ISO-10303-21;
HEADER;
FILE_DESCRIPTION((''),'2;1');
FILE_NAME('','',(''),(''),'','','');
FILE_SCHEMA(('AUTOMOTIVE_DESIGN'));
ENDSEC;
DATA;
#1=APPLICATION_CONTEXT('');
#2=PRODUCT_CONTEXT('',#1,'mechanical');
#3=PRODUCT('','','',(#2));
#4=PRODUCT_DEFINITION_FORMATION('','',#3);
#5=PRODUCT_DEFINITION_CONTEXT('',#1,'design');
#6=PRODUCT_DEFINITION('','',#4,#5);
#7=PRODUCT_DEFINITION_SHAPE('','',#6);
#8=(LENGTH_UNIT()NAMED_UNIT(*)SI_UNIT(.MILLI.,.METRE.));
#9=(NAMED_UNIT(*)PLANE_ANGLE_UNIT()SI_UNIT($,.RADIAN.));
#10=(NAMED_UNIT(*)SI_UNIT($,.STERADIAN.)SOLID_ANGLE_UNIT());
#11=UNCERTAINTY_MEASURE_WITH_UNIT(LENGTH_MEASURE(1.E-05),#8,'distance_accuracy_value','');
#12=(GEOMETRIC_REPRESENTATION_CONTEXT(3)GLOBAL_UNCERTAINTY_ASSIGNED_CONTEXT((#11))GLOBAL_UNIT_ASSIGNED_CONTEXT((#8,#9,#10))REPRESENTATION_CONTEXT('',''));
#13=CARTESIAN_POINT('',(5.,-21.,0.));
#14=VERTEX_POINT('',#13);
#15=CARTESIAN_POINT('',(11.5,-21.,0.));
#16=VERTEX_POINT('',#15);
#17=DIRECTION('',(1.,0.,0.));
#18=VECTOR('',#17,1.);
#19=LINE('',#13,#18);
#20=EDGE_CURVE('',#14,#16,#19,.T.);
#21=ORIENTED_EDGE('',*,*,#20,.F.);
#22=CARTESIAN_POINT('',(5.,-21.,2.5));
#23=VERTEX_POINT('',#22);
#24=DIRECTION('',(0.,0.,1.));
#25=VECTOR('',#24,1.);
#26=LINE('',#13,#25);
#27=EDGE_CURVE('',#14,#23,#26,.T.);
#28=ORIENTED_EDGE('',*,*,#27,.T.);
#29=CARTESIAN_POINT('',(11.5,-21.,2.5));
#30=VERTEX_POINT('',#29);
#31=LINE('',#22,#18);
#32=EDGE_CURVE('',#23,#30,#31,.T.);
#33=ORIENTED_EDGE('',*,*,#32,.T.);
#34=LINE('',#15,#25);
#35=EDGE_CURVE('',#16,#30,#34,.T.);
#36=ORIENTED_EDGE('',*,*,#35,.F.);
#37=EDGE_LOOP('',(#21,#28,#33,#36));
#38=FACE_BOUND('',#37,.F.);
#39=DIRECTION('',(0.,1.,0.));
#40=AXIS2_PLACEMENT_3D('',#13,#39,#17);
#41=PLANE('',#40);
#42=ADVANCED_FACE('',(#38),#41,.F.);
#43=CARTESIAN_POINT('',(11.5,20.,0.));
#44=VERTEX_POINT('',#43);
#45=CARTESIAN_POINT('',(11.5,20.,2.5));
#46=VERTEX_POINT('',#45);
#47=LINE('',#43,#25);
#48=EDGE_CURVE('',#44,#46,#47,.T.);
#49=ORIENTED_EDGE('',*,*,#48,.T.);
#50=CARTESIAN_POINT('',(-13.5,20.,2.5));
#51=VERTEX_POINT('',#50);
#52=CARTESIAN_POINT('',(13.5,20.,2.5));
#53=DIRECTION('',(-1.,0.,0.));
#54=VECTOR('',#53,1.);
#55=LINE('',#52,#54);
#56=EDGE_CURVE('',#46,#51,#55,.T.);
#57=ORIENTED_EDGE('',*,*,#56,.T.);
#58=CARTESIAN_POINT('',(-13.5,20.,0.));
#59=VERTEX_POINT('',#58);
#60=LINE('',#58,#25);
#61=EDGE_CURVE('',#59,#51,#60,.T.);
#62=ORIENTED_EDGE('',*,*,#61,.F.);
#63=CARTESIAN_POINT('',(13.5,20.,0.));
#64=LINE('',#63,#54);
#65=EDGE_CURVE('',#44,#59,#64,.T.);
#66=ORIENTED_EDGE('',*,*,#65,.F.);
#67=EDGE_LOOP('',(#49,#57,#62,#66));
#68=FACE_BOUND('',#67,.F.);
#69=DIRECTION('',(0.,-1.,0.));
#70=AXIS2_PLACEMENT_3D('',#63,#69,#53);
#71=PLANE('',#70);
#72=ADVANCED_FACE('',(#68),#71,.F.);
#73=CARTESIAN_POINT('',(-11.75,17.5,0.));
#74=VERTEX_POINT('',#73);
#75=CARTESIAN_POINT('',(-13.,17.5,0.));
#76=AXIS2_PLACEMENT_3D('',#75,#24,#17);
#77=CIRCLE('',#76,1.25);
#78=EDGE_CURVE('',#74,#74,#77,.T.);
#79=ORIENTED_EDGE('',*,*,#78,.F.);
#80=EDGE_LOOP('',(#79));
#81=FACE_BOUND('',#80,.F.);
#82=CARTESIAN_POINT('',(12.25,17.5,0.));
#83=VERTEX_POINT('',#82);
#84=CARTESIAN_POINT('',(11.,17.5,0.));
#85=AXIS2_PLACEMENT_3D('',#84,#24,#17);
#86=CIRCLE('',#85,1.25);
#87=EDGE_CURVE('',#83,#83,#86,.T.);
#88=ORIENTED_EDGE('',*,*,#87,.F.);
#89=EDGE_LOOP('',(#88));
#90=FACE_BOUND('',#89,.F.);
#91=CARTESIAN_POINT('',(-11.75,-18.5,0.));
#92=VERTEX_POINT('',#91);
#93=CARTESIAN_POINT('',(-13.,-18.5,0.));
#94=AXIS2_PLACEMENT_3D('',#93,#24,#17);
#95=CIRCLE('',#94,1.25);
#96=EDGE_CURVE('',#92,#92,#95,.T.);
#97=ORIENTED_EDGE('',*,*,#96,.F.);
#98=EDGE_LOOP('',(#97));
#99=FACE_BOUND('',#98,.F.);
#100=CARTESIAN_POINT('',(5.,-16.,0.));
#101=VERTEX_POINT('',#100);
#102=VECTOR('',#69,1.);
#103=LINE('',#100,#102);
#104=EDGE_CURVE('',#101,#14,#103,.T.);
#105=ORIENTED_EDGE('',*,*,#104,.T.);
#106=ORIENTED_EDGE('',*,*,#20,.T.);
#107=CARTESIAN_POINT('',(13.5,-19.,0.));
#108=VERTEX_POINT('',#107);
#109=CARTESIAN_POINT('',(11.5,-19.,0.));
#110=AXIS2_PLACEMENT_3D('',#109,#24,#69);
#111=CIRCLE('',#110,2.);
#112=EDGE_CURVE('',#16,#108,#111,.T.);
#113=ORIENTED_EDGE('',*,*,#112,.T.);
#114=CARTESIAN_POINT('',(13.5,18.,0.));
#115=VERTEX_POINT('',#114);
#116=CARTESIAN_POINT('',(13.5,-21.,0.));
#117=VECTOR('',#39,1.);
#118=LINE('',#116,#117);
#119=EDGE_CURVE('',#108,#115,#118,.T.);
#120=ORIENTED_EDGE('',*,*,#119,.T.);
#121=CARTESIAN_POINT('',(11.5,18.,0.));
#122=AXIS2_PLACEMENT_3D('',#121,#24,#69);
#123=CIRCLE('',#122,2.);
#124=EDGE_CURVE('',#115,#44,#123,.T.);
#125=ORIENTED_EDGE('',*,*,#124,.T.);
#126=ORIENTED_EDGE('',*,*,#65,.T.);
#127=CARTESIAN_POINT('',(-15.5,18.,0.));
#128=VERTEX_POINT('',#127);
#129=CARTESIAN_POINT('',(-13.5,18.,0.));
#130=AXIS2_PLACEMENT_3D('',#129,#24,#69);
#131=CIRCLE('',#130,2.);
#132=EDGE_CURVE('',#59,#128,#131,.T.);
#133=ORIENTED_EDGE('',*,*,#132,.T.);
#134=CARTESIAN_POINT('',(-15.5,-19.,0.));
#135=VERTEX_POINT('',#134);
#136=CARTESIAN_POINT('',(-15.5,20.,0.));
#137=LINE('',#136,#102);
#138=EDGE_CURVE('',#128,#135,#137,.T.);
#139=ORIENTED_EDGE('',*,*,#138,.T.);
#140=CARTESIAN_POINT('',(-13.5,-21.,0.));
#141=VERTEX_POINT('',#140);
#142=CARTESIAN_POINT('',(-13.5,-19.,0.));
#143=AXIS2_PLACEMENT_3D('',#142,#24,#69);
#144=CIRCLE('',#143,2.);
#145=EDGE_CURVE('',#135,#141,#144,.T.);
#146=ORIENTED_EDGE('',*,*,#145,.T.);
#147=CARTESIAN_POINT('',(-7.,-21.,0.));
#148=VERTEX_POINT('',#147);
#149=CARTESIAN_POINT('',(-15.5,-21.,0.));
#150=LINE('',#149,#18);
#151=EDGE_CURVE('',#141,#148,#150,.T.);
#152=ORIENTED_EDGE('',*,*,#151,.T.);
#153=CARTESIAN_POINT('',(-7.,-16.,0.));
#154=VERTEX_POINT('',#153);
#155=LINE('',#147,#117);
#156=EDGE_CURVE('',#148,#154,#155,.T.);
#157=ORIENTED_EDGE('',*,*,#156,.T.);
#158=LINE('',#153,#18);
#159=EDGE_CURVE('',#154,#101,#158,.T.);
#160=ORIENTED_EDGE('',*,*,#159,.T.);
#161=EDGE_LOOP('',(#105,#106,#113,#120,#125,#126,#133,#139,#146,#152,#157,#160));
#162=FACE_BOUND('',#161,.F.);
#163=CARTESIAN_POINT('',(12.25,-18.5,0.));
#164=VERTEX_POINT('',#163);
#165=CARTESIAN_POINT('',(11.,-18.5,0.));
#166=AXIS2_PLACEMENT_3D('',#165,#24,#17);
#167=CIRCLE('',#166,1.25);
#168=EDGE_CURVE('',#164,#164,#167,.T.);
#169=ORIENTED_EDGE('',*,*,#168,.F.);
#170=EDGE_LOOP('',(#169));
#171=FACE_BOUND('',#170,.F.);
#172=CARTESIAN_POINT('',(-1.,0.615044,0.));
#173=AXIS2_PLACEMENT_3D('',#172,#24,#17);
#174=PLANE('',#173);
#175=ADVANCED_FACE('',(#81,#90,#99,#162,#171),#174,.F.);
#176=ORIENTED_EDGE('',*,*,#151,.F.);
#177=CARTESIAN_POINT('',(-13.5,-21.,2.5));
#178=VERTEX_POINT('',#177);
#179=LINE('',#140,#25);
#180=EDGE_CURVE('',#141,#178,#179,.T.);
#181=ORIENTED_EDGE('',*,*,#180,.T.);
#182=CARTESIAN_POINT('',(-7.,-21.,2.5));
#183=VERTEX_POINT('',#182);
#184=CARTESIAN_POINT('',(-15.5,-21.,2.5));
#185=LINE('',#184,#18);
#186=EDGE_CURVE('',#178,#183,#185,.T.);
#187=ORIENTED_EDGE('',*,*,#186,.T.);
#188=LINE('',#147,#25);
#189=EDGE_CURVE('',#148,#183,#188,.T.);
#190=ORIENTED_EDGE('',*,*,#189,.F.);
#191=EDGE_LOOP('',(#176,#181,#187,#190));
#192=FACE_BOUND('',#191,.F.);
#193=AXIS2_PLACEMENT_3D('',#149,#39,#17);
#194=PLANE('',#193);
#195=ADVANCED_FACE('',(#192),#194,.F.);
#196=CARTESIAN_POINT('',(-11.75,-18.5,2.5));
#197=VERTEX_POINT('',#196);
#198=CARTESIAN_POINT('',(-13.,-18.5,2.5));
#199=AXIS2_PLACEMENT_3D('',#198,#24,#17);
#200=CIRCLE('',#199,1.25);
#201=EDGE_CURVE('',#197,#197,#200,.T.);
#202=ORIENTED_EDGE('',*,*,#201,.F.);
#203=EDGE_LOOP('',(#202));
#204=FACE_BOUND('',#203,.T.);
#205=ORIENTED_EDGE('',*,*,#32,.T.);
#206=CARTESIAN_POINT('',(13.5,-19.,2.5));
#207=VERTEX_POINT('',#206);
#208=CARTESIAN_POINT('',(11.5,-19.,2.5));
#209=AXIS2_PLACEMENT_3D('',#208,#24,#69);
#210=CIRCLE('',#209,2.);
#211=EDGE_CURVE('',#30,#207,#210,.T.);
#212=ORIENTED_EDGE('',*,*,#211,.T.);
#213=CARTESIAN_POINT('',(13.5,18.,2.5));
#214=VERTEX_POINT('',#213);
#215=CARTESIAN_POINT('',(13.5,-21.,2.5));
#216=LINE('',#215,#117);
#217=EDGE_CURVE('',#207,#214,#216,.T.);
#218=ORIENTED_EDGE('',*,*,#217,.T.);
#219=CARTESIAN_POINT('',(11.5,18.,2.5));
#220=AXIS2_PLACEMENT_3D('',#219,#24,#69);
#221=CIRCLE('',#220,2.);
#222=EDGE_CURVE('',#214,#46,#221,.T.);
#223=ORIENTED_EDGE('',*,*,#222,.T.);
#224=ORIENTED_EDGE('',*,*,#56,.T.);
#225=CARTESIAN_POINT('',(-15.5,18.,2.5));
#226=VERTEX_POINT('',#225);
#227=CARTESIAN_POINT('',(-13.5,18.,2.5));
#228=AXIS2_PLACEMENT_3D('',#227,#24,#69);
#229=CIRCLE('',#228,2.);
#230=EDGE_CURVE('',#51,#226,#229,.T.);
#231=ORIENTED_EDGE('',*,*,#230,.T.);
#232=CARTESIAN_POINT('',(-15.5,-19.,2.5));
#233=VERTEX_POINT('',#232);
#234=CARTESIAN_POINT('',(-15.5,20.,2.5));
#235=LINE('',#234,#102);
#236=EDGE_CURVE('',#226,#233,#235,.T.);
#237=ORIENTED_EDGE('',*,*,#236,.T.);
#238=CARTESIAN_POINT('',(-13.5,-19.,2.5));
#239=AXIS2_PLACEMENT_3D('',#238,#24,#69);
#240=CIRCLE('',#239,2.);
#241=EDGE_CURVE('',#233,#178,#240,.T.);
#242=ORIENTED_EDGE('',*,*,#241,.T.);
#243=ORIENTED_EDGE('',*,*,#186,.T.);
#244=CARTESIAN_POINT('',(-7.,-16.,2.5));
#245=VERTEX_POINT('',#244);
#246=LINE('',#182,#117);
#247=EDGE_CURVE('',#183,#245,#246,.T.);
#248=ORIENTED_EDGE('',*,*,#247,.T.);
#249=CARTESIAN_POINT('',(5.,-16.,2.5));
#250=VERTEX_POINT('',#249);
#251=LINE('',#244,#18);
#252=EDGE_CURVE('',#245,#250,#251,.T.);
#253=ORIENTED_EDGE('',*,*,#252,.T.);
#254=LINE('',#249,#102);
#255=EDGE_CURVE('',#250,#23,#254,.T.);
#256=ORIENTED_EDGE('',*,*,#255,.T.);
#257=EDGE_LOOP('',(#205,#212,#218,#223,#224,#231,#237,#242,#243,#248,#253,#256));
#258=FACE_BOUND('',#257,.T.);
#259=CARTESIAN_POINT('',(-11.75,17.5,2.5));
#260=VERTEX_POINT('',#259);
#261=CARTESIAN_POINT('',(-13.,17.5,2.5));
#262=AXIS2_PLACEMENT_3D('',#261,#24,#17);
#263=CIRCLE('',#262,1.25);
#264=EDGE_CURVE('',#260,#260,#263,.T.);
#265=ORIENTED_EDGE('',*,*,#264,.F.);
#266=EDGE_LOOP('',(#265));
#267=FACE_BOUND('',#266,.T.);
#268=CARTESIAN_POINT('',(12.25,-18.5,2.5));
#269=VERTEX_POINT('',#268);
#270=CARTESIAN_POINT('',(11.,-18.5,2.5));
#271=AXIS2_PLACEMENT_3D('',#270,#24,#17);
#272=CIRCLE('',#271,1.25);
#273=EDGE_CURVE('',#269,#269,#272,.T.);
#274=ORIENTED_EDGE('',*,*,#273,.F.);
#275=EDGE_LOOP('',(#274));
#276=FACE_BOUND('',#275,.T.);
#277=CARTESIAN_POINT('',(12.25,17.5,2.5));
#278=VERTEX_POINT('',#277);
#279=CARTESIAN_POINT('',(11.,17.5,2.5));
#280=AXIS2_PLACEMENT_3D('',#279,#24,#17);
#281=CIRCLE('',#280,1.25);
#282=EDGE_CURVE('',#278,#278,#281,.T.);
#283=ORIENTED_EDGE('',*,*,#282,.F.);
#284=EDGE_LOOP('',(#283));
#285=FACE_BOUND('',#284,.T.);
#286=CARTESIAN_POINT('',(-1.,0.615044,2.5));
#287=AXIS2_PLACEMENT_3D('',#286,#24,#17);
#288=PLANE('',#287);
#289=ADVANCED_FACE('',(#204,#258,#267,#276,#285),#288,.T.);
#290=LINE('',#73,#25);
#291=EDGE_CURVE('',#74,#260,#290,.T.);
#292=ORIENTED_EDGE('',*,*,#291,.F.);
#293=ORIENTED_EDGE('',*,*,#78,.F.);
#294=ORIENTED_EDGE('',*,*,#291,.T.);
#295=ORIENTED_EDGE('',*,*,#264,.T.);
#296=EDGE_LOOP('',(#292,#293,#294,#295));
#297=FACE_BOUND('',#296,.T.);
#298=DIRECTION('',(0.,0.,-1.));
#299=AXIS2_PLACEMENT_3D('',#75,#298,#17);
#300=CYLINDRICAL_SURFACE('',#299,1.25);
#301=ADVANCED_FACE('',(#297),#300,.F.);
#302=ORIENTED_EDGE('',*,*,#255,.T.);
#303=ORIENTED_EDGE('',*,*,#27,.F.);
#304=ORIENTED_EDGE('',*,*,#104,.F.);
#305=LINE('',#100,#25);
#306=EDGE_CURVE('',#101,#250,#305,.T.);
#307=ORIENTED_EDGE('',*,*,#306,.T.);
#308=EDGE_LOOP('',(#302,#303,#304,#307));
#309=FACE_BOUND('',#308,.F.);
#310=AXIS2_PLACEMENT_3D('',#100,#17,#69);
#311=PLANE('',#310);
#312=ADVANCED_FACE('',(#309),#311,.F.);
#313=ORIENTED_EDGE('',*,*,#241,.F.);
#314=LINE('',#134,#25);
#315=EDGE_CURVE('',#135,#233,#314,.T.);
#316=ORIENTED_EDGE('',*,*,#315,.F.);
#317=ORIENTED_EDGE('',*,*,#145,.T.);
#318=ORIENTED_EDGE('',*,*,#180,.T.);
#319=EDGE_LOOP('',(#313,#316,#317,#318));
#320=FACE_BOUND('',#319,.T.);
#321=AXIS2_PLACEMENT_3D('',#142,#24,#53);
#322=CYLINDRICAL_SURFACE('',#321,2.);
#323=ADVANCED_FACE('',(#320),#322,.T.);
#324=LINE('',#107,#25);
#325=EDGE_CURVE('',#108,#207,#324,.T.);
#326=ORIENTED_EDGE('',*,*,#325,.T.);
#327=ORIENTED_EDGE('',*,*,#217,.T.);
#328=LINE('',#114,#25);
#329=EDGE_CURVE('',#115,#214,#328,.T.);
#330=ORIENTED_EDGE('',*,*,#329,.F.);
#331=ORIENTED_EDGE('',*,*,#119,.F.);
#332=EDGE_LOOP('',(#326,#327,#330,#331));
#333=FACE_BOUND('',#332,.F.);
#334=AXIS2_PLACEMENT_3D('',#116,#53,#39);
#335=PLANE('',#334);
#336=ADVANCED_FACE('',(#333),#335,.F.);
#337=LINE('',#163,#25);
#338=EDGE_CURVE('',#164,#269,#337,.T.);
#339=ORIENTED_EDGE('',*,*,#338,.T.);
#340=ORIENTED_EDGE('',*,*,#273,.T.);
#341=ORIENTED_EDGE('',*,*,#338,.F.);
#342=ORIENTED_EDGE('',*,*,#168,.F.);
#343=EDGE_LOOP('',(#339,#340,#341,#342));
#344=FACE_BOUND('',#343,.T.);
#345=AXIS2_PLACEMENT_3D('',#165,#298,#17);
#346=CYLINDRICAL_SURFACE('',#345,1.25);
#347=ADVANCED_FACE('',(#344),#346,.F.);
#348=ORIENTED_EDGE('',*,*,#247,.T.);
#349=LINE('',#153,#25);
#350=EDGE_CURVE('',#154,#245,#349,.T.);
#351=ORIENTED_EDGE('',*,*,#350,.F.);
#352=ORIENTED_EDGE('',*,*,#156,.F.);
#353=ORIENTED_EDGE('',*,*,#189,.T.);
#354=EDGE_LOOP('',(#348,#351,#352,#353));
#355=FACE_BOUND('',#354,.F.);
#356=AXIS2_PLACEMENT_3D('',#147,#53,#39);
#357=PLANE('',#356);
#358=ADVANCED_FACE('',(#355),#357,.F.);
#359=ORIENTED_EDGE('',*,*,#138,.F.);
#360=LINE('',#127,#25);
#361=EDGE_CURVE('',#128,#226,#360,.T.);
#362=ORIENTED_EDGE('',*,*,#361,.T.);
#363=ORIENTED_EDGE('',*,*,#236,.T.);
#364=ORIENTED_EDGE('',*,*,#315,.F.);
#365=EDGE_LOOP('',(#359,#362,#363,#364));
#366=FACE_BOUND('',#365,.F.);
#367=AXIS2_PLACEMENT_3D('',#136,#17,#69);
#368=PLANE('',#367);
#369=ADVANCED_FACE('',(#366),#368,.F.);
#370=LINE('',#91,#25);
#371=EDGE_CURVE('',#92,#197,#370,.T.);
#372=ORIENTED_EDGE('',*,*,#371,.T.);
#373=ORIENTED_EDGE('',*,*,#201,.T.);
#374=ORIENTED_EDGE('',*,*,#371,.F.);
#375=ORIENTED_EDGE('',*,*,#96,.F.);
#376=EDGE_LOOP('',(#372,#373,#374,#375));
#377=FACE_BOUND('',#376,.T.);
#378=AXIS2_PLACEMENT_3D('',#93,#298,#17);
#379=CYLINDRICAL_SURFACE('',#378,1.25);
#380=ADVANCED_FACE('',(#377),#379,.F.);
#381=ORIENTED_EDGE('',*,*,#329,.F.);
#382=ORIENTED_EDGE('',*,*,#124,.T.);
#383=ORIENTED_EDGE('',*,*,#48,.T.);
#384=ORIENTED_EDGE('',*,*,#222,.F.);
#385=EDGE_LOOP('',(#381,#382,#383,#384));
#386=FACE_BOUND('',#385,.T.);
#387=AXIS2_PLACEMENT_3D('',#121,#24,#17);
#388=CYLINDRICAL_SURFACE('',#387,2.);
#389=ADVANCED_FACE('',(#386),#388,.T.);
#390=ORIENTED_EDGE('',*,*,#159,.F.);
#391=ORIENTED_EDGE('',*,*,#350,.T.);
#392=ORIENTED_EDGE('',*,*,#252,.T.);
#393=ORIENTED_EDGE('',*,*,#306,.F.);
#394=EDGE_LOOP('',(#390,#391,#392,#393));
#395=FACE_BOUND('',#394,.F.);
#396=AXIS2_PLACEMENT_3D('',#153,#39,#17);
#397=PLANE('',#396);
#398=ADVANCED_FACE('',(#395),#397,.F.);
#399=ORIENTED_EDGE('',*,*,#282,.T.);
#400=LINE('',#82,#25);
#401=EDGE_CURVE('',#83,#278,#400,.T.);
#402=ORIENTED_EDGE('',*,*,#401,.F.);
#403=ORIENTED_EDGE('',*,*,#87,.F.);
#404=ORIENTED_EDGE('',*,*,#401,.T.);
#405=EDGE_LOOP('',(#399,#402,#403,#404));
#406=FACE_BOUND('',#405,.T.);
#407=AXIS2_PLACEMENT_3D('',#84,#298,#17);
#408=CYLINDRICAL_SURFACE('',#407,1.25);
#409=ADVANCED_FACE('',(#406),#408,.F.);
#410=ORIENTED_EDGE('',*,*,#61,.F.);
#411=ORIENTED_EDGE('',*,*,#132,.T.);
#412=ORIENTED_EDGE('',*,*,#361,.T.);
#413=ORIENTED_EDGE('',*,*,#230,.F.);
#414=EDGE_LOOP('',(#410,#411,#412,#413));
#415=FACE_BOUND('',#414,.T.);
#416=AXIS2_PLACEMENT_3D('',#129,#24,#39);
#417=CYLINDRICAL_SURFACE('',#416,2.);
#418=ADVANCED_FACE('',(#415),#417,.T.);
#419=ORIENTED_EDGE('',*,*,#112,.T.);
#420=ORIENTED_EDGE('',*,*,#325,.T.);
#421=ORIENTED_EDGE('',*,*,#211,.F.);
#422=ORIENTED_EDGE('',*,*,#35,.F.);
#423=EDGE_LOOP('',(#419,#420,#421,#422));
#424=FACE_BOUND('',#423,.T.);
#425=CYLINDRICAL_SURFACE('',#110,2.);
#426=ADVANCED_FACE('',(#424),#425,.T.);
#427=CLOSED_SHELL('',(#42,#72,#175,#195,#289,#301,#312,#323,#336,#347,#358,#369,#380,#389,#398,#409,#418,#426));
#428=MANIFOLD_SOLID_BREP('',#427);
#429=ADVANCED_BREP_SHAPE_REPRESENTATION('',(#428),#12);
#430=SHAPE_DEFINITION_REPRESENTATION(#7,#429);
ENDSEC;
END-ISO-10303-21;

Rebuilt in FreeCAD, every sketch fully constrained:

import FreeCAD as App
import Part
import Sketcher

V = App.Vector


def edges_at(feature, points):
    """Names of the edges that pass closest to the given points."""
    edges = feature.Shape.Edges
    near = lambda p: min(range(len(edges)), key=lambda i: edges[i].distToShape(Part.Vertex(*p))[0])
    return sorted({f"Edge{near(p) + 1}" for p in points})

doc = App.newDocument("Part")
body = doc.addObject("PartDesign::Body", "Body")

# Sketch on XY plane
sketch1 = doc.addObject("Sketcher::SketchObject", "Sketch")
body.addObject(sketch1)
sketch1.AttachmentSupport = (doc.XY_Plane, [""])
sketch1.MapMode = "FlatFace"
sketch1.addGeometry(Part.LineSegment(V(5, -16, 0), V(5, -21, 0)), False)
sketch1.addGeometry(Part.LineSegment(V(5, -21, 0), V(13.5, -21, 0)), False)
sketch1.addGeometry(Part.LineSegment(V(13.5, -21, 0), V(13.5, 20, 0)), False)
sketch1.addGeometry(Part.LineSegment(V(13.5, 20, 0), V(-15.5, 20, 0)), False)
sketch1.addGeometry(Part.LineSegment(V(-15.5, 20, 0), V(-15.5, -21, 0)), False)
sketch1.addGeometry(Part.LineSegment(V(-15.5, -21, 0), V(-7, -21, 0)), False)
sketch1.addGeometry(Part.LineSegment(V(-7, -21, 0), V(-7, -16, 0)), False)
sketch1.addGeometry(Part.LineSegment(V(-7, -16, 0), V(5, -16, 0)), False)
sketch1.addGeometry(Part.Circle(V(-13, -18.5, 0), V(0, 0, 1), 1.25), False)
sketch1.addGeometry(Part.Circle(V(11, -18.5, 0), V(0, 0, 1), 1.25), False)
sketch1.addGeometry(Part.Circle(V(-13, 17.5, 0), V(0, 0, 1), 1.25), False)
sketch1.addGeometry(Part.Circle(V(11, 17.5, 0), V(0, 0, 1), 1.25), False)
sketch1.addConstraint(Sketcher.Constraint("Coincident", 0, 2, 1, 1))
sketch1.addConstraint(Sketcher.Constraint("Coincident", 1, 2, 2, 1))
sketch1.addConstraint(Sketcher.Constraint("Coincident", 2, 2, 3, 1))
sketch1.addConstraint(Sketcher.Constraint("Coincident", 3, 2, 4, 1))
sketch1.addConstraint(Sketcher.Constraint("Coincident", 4, 2, 5, 1))
sketch1.addConstraint(Sketcher.Constraint("Coincident", 5, 2, 6, 1))
sketch1.addConstraint(Sketcher.Constraint("Coincident", 6, 2, 7, 1))
sketch1.addConstraint(Sketcher.Constraint("Coincident", 7, 2, 0, 1))
sketch1.addConstraint(Sketcher.Constraint("Vertical", 0))
sketch1.addConstraint(Sketcher.Constraint("Horizontal", 1))
sketch1.addConstraint(Sketcher.Constraint("Vertical", 2))
sketch1.addConstraint(Sketcher.Constraint("Horizontal", 3))
sketch1.addConstraint(Sketcher.Constraint("Vertical", 4))
sketch1.addConstraint(Sketcher.Constraint("Horizontal", 5))
sketch1.addConstraint(Sketcher.Constraint("Vertical", 6))
sketch1.addConstraint(Sketcher.Constraint("Horizontal", 7))
sketch1.addConstraint(Sketcher.Constraint("Equal", 8, 9))
sketch1.addConstraint(Sketcher.Constraint("Equal", 9, 10))
sketch1.addConstraint(Sketcher.Constraint("Equal", 10, 11))
sketch1.addConstraint(Sketcher.Constraint("Horizontal", 8, 3, 9, 3))
sketch1.addConstraint(Sketcher.Constraint("Horizontal", 10, 3, 11, 3))
sketch1.addConstraint(Sketcher.Constraint("Horizontal", 1, 2, 4, 2))
sketch1.addConstraint(Sketcher.Constraint("Vertical", 8, 3, 10, 3))
sketch1.addConstraint(Sketcher.Constraint("Vertical", 9, 3, 11, 3))
sketch1.addConstraint(Sketcher.Constraint("Equal", 1, 5))
sketch1.addConstraint(Sketcher.Constraint("Diameter", 8, 2.5))
sketch1.addConstraint(Sketcher.Constraint("DistanceX", 3, 2, 3, 1, 29.0))
sketch1.addConstraint(Sketcher.Constraint("DistanceX", 7, 1, 7, 2, 12.0))
sketch1.addConstraint(Sketcher.Constraint("DistanceY", 0, 2, 0, 1, 5.0))
sketch1.addConstraint(Sketcher.Constraint("DistanceY", 2, 1, 2, 2, 41.0))
sketch1.addConstraint(Sketcher.Constraint("DistanceX", 8, 3, -1, 1, 13.0))
sketch1.addConstraint(Sketcher.Constraint("DistanceX", -1, 1, 9, 3, 11.0))
sketch1.addConstraint(Sketcher.Constraint("DistanceX", -1, 1, 0, 2, 5.0))
sketch1.addConstraint(Sketcher.Constraint("DistanceY", 0, 2, -1, 1, 21.0))
sketch1.addConstraint(Sketcher.Constraint("DistanceY", 8, 3, 10, 3, 36.0))
sketch1.addConstraint(Sketcher.Constraint("DistanceY", 8, 3, -1, 1, 18.5))
pad1 = doc.addObject("PartDesign::Pad", "Pad")
body.addObject(pad1)
pad1.Profile = sketch1
pad1.Length = 2.5
doc.recompute()

fillet = doc.addObject("PartDesign::Fillet", "Fillet")
body.addObject(fillet)
fillet.Base = (pad1, edges_at(pad1, [
    (-15.5, 20, 1.25),
    (13.5, 20, 1.25),
    (13.5, -21, 1.25),
    (-15.5, -21, 1.25),
]))
fillet.Radius = 2

doc.recompute()
